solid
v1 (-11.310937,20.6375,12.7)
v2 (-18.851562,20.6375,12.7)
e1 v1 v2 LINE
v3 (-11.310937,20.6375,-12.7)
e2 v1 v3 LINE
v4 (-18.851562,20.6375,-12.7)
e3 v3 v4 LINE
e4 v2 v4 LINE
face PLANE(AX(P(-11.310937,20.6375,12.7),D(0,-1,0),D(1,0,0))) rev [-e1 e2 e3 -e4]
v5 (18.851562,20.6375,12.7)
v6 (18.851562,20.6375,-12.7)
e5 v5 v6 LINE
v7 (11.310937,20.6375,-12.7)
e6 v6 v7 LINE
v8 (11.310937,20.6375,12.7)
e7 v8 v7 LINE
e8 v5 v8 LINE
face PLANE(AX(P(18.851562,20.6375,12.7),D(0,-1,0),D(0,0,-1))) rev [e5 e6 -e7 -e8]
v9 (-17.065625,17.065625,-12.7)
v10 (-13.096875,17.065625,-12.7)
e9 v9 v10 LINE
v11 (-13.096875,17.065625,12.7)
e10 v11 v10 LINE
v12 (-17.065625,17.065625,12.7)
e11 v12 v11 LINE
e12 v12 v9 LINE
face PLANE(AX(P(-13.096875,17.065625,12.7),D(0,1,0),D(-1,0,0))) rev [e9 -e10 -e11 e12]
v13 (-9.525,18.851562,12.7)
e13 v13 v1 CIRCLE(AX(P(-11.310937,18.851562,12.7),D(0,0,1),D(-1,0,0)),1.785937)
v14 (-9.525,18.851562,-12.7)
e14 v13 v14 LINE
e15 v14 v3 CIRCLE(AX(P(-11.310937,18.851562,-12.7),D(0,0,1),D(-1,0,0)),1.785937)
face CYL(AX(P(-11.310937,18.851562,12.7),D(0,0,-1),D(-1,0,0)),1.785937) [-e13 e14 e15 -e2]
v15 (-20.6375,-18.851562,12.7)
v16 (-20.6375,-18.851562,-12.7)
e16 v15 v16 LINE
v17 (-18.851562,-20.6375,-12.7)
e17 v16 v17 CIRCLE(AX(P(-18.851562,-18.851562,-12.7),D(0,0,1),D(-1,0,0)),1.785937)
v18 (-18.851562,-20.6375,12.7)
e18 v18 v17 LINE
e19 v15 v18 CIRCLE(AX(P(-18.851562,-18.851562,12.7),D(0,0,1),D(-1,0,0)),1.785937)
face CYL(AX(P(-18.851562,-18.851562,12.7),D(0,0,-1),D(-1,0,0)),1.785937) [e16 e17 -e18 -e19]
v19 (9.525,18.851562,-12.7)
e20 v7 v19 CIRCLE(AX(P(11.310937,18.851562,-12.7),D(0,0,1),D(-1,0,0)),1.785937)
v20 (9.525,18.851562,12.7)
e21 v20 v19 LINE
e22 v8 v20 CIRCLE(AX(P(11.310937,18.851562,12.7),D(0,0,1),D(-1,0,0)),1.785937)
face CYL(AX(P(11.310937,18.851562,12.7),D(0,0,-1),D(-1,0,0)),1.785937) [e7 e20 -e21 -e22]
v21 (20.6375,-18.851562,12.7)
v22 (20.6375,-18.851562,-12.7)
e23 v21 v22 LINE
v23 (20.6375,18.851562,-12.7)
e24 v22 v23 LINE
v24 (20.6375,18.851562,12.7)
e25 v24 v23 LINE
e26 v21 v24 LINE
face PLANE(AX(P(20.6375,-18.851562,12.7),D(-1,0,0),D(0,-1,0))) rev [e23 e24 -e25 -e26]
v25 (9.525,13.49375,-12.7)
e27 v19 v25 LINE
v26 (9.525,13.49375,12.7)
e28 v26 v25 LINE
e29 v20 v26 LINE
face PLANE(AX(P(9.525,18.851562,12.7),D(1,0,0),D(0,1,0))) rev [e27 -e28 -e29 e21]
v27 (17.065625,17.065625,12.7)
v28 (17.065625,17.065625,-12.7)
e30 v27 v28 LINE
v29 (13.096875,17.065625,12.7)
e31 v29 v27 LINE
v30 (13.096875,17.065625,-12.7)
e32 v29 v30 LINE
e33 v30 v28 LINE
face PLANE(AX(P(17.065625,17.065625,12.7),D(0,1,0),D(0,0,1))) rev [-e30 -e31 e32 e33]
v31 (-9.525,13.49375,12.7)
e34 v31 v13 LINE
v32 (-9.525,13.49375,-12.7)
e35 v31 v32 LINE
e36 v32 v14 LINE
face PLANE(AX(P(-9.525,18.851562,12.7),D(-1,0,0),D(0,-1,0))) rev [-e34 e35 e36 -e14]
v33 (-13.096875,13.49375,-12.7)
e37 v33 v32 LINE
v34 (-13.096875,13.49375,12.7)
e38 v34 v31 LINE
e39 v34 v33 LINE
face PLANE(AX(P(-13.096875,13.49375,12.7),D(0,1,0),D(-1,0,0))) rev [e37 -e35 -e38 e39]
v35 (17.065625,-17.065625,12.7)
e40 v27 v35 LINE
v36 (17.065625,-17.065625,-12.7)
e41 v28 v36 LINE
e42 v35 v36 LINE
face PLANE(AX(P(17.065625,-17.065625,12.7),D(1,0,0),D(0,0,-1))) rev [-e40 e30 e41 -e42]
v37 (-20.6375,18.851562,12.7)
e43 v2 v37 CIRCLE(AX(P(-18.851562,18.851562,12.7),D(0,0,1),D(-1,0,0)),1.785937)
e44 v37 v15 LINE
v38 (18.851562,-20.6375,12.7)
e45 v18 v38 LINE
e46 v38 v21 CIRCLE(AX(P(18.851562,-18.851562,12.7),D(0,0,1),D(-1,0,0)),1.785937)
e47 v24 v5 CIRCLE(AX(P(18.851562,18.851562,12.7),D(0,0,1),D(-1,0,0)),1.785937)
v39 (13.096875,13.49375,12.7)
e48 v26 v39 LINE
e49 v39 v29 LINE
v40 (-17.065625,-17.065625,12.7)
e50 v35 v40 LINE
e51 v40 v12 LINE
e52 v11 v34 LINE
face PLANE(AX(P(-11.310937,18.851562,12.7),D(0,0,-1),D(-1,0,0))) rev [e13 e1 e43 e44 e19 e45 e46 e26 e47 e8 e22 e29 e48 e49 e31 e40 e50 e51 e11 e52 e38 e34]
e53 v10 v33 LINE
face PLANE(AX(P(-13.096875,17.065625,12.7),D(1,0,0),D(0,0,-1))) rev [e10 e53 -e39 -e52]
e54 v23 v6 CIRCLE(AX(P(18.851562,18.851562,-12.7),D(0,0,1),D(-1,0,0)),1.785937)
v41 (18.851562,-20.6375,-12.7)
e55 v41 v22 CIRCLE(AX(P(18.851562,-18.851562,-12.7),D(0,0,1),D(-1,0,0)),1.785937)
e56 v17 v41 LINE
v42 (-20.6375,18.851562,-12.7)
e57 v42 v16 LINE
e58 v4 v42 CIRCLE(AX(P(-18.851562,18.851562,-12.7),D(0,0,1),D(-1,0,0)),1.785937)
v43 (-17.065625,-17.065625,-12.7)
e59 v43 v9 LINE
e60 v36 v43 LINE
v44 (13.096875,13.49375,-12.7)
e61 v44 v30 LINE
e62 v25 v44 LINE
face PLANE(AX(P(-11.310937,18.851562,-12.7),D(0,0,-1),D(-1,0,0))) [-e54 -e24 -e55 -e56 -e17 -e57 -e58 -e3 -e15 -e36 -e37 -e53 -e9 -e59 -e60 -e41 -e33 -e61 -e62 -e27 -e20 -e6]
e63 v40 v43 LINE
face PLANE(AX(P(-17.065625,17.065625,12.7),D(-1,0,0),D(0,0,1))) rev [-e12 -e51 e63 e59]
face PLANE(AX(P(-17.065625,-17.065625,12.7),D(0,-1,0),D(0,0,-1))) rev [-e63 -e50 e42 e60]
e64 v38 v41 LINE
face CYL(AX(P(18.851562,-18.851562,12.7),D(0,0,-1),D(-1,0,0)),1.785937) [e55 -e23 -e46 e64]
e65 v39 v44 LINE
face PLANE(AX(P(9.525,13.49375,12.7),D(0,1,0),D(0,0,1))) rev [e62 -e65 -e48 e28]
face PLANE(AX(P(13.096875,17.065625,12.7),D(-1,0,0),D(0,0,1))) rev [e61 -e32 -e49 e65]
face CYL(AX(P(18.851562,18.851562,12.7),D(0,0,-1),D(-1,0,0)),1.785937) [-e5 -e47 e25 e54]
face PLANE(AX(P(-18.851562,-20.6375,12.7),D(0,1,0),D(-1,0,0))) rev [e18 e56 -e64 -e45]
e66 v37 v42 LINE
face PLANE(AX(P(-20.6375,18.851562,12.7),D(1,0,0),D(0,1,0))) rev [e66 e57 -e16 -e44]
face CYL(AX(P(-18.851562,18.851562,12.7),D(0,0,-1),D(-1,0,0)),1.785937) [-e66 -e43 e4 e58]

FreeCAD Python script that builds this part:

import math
import FreeCAD as App
import Part
import Sketcher
from FreeCAD import Vector
Q = App.Units.Quantity

doc = App.newDocument("Part")
body = doc.addObject("PartDesign::Body", "Body")

# Sketch on XY plane
sketch1 = doc.addObject("Sketcher::SketchObject", "Sketch")
body.addObject(sketch1)
sketch1.AttachmentSupport = (doc.XY_Plane, [""])
sketch1.MapMode = "FlatFace"
sketch1.addGeometry([
    Part.LineSegment(Vector(-11.3, 20.6, 0), Vector(-18.9, 20.6, 0)),  # 0
    Part.ArcOfCircle(Part.Circle(Vector(-18.9, 18.9, 0), Vector(0, 0, 1), 1.8), math.radians(90), math.radians(180)),  # 1
    Part.LineSegment(Vector(-20.6, 18.9, 0), Vector(-20.6, -18.9, 0)),  # 2
    Part.ArcOfCircle(Part.Circle(Vector(-18.9, -18.9, 0), Vector(0, 0, 1), 1.8), math.radians(180), math.radians(270)),  # 3
    Part.LineSegment(Vector(-18.9, -20.6, 0), Vector(18.9, -20.6, 0)),  # 4
    Part.ArcOfCircle(Part.Circle(Vector(18.9, -18.9, 0), Vector(0, 0, 1), 1.8), math.radians(-90), math.radians(0)),  # 5
    Part.LineSegment(Vector(20.6, -18.9, 0), Vector(20.6, 18.9, 0)),  # 6
    Part.ArcOfCircle(Part.Circle(Vector(18.9, 18.9, 0), Vector(0, 0, 1), 1.8), math.radians(0), math.radians(90)),  # 7
    Part.LineSegment(Vector(18.9, 20.6, 0), Vector(11.3, 20.6, 0)),  # 8
    Part.ArcOfCircle(Part.Circle(Vector(11.3, 18.9, 0), Vector(0, 0, 1), 1.8), math.radians(90), math.radians(180)),  # 9
    Part.LineSegment(Vector(9.5, 18.9, 0), Vector(9.5, 13.5, 0)),  # 10
    Part.LineSegment(Vector(9.5, 13.5, 0), Vector(13.1, 13.5, 0)),  # 11
    Part.LineSegment(Vector(13.1, 13.5, 0), Vector(13.1, 17.1, 0)),  # 12
    Part.LineSegment(Vector(13.1, 17.1, 0), Vector(17.1, 17.1, 0)),  # 13
    Part.LineSegment(Vector(17.1, 17.1, 0), Vector(17.1, -17.1, 0)),  # 14
    Part.LineSegment(Vector(17.1, -17.1, 0), Vector(-17.1, -17.1, 0)),  # 15
    Part.LineSegment(Vector(-17.1, -17.1, 0), Vector(-17.1, 17.1, 0)),  # 16
    Part.LineSegment(Vector(-17.1, 17.1, 0), Vector(-13.1, 17.1, 0)),  # 17
    Part.LineSegment(Vector(-13.1, 17.1, 0), Vector(-13.1, 13.5, 0)),  # 18
    Part.LineSegment(Vector(-13.1, 13.5, 0), Vector(-9.5, 13.5, 0)),  # 19
    Part.LineSegment(Vector(-9.5, 13.5, 0), Vector(-9.5, 18.9, 0)),  # 20
    Part.ArcOfCircle(Part.Circle(Vector(-11.3, 18.9, 0), Vector(0, 0, 1), 1.8), math.radians(0), math.radians(90)),  # 21
], False)
sketch1.addConstraint([
    Sketcher.Constraint("Tangent", 0, 2, 1, 1),
    Sketcher.Constraint("Tangent", 1, 2, 2, 1),
    Sketcher.Constraint("Tangent", 2, 2, 3, 1),
    Sketcher.Constraint("Tangent", 3, 2, 4, 1),
    Sketcher.Constraint("Tangent", 4, 2, 5, 1),
    Sketcher.Constraint("Tangent", 5, 2, 6, 1),
    Sketcher.Constraint("Tangent", 6, 2, 7, 1),
    Sketcher.Constraint("Tangent", 7, 2, 8, 1),
    Sketcher.Constraint("Tangent", 8, 2, 9, 1),
    Sketcher.Constraint("Tangent", 9, 2, 10, 1),
    Sketcher.Constraint("Coincident", 10, 2, 11, 1),
    Sketcher.Constraint("Coincident", 11, 2, 12, 1),
    Sketcher.Constraint("Coincident", 12, 2, 13, 1),
    Sketcher.Constraint("Coincident", 13, 2, 14, 1),
    Sketcher.Constraint("Coincident", 14, 2, 15, 1),
    Sketcher.Constraint("Coincident", 15, 2, 16, 1),
    Sketcher.Constraint("Coincident", 16, 2, 17, 1),
    Sketcher.Constraint("Coincident", 17, 2, 18, 1),
    Sketcher.Constraint("Coincident", 18, 2, 19, 1),
    Sketcher.Constraint("Coincident", 19, 2, 20, 1),
    Sketcher.Constraint("Tangent", 20, 2, 21, 1),
    Sketcher.Constraint("Tangent", 21, 2, 0, 1),
    Sketcher.Constraint("Horizontal", 0),
    Sketcher.Constraint("Vertical", 2),
    Sketcher.Constraint("Horizontal", 4),
    Sketcher.Constraint("Vertical", 6),
    Sketcher.Constraint("Horizontal", 8),
    Sketcher.Constraint("Vertical", 10),
    Sketcher.Constraint("Horizontal", 11),
    Sketcher.Constraint("Vertical", 12),
    Sketcher.Constraint("Horizontal", 13),
    Sketcher.Constraint("Vertical", 14),
    Sketcher.Constraint("Horizontal", 15),
    Sketcher.Constraint("Vertical", 16),
    Sketcher.Constraint("Horizontal", 17),
    Sketcher.Constraint("Vertical", 18),
    Sketcher.Constraint("Horizontal", 19),
    Sketcher.Constraint("Vertical", 20),
    Sketcher.Constraint("Equal", 1, 3),
    Sketcher.Constraint("Equal", 3, 5),
    Sketcher.Constraint("Equal", 5, 7),
    Sketcher.Constraint("Equal", 7, 9),
    Sketcher.Constraint("Equal", 9, 21),
    Sketcher.Constraint("Symmetric", 1, 3, 5, 3, -1, 1),
    Sketcher.Constraint("Symmetric", 13, 2, 15, 2, -1, 1),
    Sketcher.Constraint("Symmetric", 9, 3, 21, 3, -2),
    Sketcher.Constraint("Symmetric", 12, 2, 17, 2, -2),
    Sketcher.Constraint("Horizontal", 11, 2, 18, 2),
    Sketcher.Constraint("Equal", 4, 2),
    Sketcher.Constraint("Equal", 19, 12),
    Sketcher.Constraint("Equal", 15, 14),
    Sketcher.Constraint("DistanceX", 0, 2, 0, 1, Q("0.296875 in")),
    Sketcher.Constraint("DistanceX", 4, 1, 4, 2, Q("1.484375 in")),
    Sketcher.Constraint("DistanceX", 11, 1, 11, 2, Q("0.140625 in")),
    Sketcher.Constraint("DistanceX", 13, 1, 13, 2, Q("0.15625 in")),
    Sketcher.Constraint("DistanceX", 15, 2, 15, 1, Q("1.34375 in")),
])
pad1 = doc.addObject("PartDesign::Pad", "Pad")
body.addObject(pad1)
pad1.Profile = sketch1
pad1.Length = Q("1 in")
pad1.Midplane = True

doc.recompute()
